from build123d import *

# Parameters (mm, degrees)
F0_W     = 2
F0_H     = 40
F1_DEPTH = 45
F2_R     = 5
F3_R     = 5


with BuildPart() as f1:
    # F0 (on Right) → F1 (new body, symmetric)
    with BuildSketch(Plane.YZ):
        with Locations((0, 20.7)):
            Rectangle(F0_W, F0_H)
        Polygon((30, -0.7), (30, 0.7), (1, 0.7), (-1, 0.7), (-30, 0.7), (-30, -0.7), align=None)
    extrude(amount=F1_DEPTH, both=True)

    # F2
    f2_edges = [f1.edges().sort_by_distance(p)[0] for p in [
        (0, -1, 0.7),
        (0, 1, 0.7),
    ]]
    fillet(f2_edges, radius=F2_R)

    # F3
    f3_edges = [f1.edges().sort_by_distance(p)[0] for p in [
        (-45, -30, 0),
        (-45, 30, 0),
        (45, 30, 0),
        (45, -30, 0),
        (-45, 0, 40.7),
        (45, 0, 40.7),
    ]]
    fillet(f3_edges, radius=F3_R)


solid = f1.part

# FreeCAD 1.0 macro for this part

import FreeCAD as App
import Part
import Sketcher


def edges_at(feature, points):
    """Names of the edges that pass closest to the given points."""
    edges = feature.Shape.Edges
    near = lambda p: min(range(len(edges)), key=lambda i: edges[i].distToShape(Part.Vertex(*p))[0])
    return sorted({f"Edge{near(p) + 1}" for p in points})

doc = App.newDocument("Part")
body = doc.addObject("PartDesign::Body", "Body")

sketch1 = doc.addObject("Sketcher::SketchObject", "Sketch")
body.addObject(sketch1)
sketch1.AttachmentSupport = (doc.YZ_Plane, [""])
sketch1.MapMode = "FlatFace"
sketch1.addGeometry([
    Part.LineSegment(App.Vector(-1, 40.7, 0), App.Vector(-1, 0.7, 0)),
    Part.LineSegment(App.Vector(-1, 0.7, 0), App.Vector(-30, 0.7, 0)),
    Part.LineSegment(App.Vector(-30, 0.7, 0), App.Vector(-30, -0.7, 0)),
    Part.LineSegment(App.Vector(-30, -0.7, 0), App.Vector(30, -0.7, 0)),
    Part.LineSegment(App.Vector(30, -0.7, 0), App.Vector(30, 0.7, 0)),
    Part.LineSegment(App.Vector(30, 0.7, 0), App.Vector(1, 0.7, 0)),
    Part.LineSegment(App.Vector(1, 0.7, 0), App.Vector(1, 40.7, 0)),
    Part.LineSegment(App.Vector(1, 40.7, 0), App.Vector(-1, 40.7, 0)),
], False)
sketch1.addConstraint([
    Sketcher.Constraint("Coincident", 0, 2, 1, 1),
    Sketcher.Constraint("Coincident", 1, 2, 2, 1),
    Sketcher.Constraint("Coincident", 2, 2, 3, 1),
    Sketcher.Constraint("Coincident", 3, 2, 4, 1),
    Sketcher.Constraint("Coincident", 4, 2, 5, 1),
    Sketcher.Constraint("Coincident", 5, 2, 6, 1),
    Sketcher.Constraint("Coincident", 6, 2, 7, 1),
    Sketcher.Constraint("Coincident", 7, 2, 0, 1),
    Sketcher.Constraint("Vertical", 0),
    Sketcher.Constraint("Horizontal", 1),
    Sketcher.Constraint("Vertical", 2),
    Sketcher.Constraint("Horizontal", 3),
    Sketcher.Constraint("Vertical", 4),
    Sketcher.Constraint("Horizontal", 5),
    Sketcher.Constraint("Vertical", 6),
    Sketcher.Constraint("Horizontal", 7),
    Sketcher.Constraint("Symmetric", 1, 2, 3, 2, -1, 1),
    Sketcher.Constraint("Symmetric", 0, 2, 5, 2, -2),
    Sketcher.Constraint("DistanceX", 1, 2, 1, 1, 29.0),
    Sketcher.Constraint("DistanceX", 3, 1, 3, 2, 60.0),
    Sketcher.Constraint("DistanceY", 0, 2, 0, 1, 40.0),
    Sketcher.Constraint("DistanceY", 2, 2, 2, 1, 1.4),
])
pad1 = doc.addObject("PartDesign::Pad", "Pad")
body.addObject(pad1)
pad1.Profile = sketch1
pad1.Length = 90
pad1.Midplane = True
doc.recompute()

fillet = doc.addObject("PartDesign::Fillet", "Fillet")
body.addObject(fillet)
fillet.Base = (pad1, edges_at(pad1, [(0, -1, 0.7), (0, 1, 0.7)]))
fillet.Radius = 5
doc.recompute()

fillet2 = doc.addObject("PartDesign::Fillet", "Fillet001")
body.addObject(fillet2)
fillet2.Base = (fillet, edges_at(fillet, [
    (-45, -30, 0),
    (-45, 30, 0),
    (45, 30, 0),
    (45, -30, 0),
    (-45, 0, 40.7),
    (45, 0, 40.7),
]))
fillet2.Radius = 5

doc.recompute()
